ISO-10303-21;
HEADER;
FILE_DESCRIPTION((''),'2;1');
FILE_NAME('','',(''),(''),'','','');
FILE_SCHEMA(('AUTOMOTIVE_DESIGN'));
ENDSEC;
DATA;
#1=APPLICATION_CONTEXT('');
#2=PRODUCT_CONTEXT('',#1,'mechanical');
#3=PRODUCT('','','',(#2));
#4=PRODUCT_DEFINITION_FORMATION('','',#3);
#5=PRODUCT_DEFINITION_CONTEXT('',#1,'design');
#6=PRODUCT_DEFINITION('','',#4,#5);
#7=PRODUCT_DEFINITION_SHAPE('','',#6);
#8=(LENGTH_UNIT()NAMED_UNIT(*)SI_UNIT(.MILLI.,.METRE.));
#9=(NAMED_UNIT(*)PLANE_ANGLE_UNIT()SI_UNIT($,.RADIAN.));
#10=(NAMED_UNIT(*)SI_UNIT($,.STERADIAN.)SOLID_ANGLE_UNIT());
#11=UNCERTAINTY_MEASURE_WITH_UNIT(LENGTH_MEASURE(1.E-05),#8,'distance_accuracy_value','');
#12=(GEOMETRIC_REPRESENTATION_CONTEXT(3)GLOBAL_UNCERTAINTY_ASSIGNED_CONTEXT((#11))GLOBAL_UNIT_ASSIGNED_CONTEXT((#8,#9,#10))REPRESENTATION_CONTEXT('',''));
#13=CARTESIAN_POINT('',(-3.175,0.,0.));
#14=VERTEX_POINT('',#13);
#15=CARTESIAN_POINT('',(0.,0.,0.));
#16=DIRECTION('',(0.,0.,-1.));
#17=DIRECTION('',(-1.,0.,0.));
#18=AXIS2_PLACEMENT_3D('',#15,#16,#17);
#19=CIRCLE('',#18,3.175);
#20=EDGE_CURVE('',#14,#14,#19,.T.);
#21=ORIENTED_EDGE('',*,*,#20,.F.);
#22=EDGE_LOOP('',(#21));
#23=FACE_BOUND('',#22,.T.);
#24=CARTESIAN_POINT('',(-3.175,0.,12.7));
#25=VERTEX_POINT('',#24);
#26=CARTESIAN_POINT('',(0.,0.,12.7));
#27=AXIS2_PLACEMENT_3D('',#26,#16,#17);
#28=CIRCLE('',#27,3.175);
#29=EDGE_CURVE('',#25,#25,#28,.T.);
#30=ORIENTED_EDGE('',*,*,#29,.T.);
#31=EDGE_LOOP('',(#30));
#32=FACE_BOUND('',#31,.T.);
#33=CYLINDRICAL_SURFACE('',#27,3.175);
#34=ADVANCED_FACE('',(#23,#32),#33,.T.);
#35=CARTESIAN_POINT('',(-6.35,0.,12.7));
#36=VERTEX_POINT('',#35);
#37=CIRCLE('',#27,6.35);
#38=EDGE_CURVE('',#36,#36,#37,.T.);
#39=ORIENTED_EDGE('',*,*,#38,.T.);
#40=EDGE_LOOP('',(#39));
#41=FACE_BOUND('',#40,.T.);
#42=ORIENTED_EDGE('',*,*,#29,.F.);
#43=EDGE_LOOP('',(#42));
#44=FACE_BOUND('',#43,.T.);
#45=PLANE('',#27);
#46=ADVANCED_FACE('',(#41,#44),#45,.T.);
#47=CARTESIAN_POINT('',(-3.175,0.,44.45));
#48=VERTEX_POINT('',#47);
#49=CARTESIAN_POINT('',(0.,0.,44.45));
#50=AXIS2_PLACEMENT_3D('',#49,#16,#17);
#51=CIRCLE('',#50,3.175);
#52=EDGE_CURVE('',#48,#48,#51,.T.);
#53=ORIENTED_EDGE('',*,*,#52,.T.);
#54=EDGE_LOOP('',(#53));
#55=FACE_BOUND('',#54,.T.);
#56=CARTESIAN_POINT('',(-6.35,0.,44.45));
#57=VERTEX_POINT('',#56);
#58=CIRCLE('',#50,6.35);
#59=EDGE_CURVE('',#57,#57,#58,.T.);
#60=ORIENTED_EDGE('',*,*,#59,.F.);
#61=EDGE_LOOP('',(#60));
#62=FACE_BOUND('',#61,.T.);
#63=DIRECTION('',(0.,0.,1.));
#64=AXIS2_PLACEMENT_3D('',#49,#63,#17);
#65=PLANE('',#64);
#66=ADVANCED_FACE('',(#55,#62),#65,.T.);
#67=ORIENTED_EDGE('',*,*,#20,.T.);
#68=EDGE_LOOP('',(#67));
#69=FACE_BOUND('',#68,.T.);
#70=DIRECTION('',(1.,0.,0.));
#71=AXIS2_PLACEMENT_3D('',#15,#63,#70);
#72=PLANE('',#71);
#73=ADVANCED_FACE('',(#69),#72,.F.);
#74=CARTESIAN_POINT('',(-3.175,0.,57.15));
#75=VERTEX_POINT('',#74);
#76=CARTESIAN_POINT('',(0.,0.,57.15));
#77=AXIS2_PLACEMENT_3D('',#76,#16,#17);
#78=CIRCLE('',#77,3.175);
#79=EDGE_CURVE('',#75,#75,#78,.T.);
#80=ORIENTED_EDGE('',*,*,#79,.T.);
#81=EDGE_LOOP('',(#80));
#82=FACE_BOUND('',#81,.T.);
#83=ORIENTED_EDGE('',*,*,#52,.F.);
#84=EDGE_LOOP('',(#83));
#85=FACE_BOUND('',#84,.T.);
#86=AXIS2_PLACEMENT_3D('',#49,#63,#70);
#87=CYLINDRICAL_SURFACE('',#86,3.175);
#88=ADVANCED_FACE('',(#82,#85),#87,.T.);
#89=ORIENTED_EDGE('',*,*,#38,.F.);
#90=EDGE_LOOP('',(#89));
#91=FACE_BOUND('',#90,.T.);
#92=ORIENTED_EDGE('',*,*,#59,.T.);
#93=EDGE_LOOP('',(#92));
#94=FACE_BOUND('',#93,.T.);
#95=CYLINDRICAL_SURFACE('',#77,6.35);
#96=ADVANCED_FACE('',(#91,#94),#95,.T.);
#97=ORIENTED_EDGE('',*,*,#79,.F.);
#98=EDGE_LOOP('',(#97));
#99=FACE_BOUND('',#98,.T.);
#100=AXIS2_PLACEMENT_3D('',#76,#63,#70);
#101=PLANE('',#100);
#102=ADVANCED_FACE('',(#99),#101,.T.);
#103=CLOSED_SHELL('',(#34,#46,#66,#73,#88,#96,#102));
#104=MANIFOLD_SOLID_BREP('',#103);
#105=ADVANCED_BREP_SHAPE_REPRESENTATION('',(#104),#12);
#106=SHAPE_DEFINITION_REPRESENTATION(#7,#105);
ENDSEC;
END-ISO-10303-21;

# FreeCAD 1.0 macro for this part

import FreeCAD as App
import Part
import Sketcher
Q = App.Units.Quantity

doc = App.newDocument("Part")
params = doc.addObject("Spreadsheet::Sheet", "Params")
for row, (alias, value) in enumerate([
    ("sketch1_diameter", "0.5 in"),
    ("pad1_length", "2.25 in"),
    ("sketch2_diameter", "0.5 in"),
    ("sketch2_diameter2", "0.25 in"),
    ("pocket1_length", "0.5 in"),
], start=1):
    params.set(f"A{row}", alias)
    params.set(f"B{row}", "=" + value)
    params.setAlias(f"B{row}", alias)

body = doc.addObject("PartDesign::Body", "Body")

# Sketch on XY plane
sketch1 = body.newObject("Sketcher::SketchObject", "Sketch")
sketch1.AttachmentSupport = (doc.getObject("XY_Plane"), [""])
sketch1.MapMode = "FlatFace"
sketch1.addGeometry(Part.Circle(App.Vector(0, 0, 0), App.Vector(0, 0, 1), 6), False)
sketch1.addConstraint(Sketcher.Constraint("Coincident", 0, 3, -1, 1))
sketch1.addConstraint(Sketcher.Constraint("Diameter", 0, Q("0.5 in")))
sketch1.setExpression("Constraints[1]", "Params.sketch1_diameter")
pad1 = body.newObject("PartDesign::Pad", "Pad")
pad1.Profile = sketch1
pad1.setExpression("Length", "Params.pad1_length")

# Sketch on XY plane
sketch2 = body.newObject("Sketcher::SketchObject", "Sketch001")
sketch2.AttachmentSupport = (doc.getObject("XY_Plane"), [""])
sketch2.MapMode = "FlatFace"
sketch2.addGeometry(Part.Circle(App.Vector(0, 0, 0), App.Vector(0, 0, 1), 6.3), False)
sketch2.addGeometry(Part.Circle(App.Vector(0, 0, 0), App.Vector(0, 0, 1), 3.2), False)
sketch2.addConstraint(Sketcher.Constraint("Coincident", 0, 3, -1, 1))
sketch2.addConstraint(Sketcher.Constraint("Coincident", 1, 3, -1, 1))
sketch2.addConstraint(Sketcher.Constraint("Diameter", 0, Q("0.5 in")))
sketch2.addConstraint(Sketcher.Constraint("Diameter", 1, Q("0.25 in")))
sketch2.setExpression("Constraints[2]", "Params.sketch2_diameter")
sketch2.setExpression("Constraints[3]", "Params.sketch2_diameter2")
pocket1 = body.newObject("PartDesign::Pocket", "Pocket")
pocket1.Profile = sketch2
pocket1.setExpression("Length", "Params.pocket1_length")
pocket1.Reversed = True
doc.recompute()

datumplane = body.newObject("PartDesign::Plane", "DatumPlane")
datumplane.AttachmentSupport = (doc.getObject("XY_Plane"), [""])
datumplane.MapMode = "FlatFace"
datumplane.AttachmentOffset = App.Placement(App.Vector(0, 0, 1.125 * 25.4), App.Rotation())
mirrored = body.newObject("PartDesign::Mirrored", "Mirrored")
mirrored.Originals = [pocket1]
mirrored.MirrorPlane = (datumplane, [""])
body.Tip = mirrored

doc.recompute()
